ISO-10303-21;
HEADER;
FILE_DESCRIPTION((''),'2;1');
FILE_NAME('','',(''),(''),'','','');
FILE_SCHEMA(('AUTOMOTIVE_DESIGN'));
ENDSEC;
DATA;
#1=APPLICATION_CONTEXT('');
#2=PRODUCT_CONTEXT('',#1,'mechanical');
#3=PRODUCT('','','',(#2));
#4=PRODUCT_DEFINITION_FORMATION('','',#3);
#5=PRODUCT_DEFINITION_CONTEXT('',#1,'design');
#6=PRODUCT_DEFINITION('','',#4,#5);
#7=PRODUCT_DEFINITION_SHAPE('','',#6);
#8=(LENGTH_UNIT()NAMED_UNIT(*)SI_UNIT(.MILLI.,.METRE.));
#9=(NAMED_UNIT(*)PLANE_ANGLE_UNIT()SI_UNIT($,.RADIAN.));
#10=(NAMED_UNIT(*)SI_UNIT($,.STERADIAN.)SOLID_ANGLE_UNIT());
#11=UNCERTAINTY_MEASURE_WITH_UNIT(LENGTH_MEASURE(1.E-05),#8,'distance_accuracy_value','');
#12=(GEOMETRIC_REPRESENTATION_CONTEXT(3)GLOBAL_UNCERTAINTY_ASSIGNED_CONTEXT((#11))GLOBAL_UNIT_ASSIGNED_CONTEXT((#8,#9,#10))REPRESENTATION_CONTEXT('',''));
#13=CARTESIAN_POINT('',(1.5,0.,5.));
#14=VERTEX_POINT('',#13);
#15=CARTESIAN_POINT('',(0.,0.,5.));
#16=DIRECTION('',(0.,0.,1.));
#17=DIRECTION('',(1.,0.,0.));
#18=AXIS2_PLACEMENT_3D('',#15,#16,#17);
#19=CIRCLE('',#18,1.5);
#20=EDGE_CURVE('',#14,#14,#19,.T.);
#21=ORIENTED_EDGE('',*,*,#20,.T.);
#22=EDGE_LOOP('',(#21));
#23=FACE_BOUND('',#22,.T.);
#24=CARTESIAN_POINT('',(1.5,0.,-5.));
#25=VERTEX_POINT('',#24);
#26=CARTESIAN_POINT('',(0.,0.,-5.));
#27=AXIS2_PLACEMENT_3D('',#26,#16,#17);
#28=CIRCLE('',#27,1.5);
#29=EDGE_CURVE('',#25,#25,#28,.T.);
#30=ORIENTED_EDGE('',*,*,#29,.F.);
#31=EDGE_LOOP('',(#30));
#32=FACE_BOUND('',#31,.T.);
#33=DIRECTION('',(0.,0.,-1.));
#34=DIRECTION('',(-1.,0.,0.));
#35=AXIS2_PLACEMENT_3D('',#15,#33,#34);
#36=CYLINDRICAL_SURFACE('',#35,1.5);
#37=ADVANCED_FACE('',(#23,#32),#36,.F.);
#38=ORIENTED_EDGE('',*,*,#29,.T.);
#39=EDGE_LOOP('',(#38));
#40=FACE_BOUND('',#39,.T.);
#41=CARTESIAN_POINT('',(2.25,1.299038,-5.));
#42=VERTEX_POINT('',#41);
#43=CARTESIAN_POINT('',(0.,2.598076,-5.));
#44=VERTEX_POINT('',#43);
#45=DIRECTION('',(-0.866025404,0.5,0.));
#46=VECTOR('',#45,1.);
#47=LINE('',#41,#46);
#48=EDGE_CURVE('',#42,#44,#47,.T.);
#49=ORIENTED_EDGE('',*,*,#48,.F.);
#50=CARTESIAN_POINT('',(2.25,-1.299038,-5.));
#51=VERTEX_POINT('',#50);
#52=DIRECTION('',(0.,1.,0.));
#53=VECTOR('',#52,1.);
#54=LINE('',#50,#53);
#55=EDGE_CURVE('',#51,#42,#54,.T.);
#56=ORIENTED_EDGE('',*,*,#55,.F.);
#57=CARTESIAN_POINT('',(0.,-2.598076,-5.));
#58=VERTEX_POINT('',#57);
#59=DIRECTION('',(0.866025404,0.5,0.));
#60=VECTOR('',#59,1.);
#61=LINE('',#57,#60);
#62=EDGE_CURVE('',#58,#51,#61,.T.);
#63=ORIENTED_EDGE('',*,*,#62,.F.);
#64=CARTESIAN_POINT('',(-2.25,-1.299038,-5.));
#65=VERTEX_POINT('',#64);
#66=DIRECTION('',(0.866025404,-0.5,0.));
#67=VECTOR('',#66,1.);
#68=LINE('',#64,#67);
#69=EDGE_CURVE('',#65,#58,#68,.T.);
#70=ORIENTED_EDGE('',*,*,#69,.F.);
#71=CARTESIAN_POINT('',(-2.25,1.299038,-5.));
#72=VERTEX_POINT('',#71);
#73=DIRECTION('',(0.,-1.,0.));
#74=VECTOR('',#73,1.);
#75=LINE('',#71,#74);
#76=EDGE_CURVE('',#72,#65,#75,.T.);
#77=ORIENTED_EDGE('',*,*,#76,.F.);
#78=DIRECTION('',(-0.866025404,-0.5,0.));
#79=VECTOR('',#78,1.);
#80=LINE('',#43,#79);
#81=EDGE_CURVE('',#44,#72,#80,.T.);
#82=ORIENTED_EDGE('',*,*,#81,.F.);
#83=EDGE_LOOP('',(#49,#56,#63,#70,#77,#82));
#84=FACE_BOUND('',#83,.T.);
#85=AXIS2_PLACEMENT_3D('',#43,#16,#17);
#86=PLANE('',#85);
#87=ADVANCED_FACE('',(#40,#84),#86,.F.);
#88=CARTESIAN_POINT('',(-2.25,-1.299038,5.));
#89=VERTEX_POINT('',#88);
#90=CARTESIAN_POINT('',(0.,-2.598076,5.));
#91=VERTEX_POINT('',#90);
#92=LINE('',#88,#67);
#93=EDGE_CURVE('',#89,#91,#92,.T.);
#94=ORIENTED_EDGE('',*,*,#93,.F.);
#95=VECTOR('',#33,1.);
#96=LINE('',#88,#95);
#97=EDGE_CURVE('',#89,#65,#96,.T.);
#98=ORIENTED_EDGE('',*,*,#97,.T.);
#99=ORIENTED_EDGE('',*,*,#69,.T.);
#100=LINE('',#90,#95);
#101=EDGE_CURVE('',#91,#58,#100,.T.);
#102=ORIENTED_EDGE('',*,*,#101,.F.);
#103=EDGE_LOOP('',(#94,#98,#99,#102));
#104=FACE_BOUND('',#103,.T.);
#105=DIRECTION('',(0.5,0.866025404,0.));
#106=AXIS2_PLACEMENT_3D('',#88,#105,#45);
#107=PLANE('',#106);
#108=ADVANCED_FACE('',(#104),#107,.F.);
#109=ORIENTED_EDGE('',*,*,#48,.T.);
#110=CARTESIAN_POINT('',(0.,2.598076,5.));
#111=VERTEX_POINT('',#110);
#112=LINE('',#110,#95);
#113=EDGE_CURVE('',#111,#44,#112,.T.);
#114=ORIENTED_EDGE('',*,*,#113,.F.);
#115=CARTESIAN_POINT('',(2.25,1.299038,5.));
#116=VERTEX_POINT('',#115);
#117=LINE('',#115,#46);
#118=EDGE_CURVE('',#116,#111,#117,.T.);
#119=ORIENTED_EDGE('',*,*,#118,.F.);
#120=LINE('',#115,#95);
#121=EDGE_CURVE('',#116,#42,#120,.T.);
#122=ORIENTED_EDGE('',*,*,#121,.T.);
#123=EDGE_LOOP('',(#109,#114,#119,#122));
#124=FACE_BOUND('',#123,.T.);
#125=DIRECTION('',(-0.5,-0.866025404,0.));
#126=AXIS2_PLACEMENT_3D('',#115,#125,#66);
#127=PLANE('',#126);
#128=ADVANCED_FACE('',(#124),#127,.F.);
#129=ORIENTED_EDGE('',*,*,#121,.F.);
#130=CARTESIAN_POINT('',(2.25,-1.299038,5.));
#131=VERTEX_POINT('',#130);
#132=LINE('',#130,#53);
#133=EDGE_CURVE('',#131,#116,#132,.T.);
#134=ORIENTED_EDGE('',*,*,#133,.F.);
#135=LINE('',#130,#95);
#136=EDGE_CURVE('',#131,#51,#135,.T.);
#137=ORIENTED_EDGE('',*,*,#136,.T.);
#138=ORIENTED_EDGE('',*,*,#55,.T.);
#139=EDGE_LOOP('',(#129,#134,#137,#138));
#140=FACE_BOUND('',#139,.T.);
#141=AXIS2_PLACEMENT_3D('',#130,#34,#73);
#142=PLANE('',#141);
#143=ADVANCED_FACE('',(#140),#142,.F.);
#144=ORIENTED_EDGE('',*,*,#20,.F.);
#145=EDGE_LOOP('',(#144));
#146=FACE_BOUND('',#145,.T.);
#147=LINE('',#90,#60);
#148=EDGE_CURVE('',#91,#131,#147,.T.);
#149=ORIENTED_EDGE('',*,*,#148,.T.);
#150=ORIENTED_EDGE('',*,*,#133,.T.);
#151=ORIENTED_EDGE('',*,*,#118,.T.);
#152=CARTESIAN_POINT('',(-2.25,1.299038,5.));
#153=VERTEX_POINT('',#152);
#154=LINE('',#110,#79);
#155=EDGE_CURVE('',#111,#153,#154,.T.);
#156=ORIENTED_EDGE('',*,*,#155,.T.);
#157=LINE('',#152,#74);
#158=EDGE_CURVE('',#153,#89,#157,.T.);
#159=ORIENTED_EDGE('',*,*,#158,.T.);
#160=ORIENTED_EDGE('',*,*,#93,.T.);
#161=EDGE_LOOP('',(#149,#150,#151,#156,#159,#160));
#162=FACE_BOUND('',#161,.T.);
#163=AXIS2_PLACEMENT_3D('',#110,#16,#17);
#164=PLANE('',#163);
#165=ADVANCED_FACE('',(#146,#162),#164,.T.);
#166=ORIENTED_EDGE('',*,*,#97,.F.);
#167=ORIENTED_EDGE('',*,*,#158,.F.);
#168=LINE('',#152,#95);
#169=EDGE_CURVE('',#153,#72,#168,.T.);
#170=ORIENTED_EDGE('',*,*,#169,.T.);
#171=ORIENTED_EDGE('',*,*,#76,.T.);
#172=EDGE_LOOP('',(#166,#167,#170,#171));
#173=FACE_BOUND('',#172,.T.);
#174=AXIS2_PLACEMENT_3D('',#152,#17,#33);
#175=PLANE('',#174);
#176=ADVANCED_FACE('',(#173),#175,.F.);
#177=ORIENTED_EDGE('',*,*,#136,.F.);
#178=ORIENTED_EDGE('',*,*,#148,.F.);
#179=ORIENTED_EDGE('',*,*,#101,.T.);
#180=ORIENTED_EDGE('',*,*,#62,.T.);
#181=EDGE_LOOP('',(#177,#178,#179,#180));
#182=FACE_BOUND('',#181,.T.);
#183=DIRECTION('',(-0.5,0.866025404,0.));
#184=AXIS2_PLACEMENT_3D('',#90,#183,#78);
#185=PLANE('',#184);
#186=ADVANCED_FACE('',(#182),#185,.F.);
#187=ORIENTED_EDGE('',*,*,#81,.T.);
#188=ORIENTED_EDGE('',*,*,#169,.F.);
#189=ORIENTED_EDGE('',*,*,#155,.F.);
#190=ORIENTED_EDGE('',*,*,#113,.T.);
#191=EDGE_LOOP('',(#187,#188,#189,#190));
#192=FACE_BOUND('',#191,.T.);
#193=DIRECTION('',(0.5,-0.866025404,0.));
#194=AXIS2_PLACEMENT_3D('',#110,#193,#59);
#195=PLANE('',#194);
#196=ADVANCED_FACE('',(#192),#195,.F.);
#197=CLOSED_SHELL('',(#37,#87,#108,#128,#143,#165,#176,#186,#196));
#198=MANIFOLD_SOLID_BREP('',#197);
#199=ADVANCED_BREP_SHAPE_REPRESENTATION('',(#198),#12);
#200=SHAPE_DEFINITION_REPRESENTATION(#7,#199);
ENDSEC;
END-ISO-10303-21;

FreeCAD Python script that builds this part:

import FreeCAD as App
import Part
import Sketcher

V = App.Vector
Q = App.Units.Quantity

doc = App.newDocument("Part")
body = doc.addObject("PartDesign::Body", "Body")

# Sketch on XY plane
sketch1 = body.newObject("Sketcher::SketchObject", "Sketch")
sketch1.AttachmentSupport = (doc.getObject("XY_Plane"), [""])
sketch1.MapMode = "FlatFace"
sketch1.addGeometry([
    Part.LineSegment(V(0, 2.6, 0), V(-2.2, 1.3, 0)),  # 0
    Part.LineSegment(V(-2.2, 1.3, 0), V(-2.2, -1.3, 0)),  # 1
    Part.LineSegment(V(-2.2, -1.3, 0), V(0, -2.6, 0)),  # 2
    Part.LineSegment(V(0, -2.6, 0), V(2.2, -1.3, 0)),  # 3
    Part.LineSegment(V(2.2, -1.3, 0), V(2.2, 1.3, 0)),  # 4
    Part.LineSegment(V(2.2, 1.3, 0), V(0, 2.6, 0)),  # 5
    Part.Circle(V(0, 0, 0), V(0, 0, 1), 1.5),  # 6
], False)
sketch1.addConstraint([
    Sketcher.Constraint("Coincident", 0, 2, 1, 1),
    Sketcher.Constraint("Coincident", 1, 2, 2, 1),
    Sketcher.Constraint("Coincident", 2, 2, 3, 1),
    Sketcher.Constraint("Coincident", 3, 2, 4, 1),
    Sketcher.Constraint("Coincident", 4, 2, 5, 1),
    Sketcher.Constraint("Coincident", 5, 2, 0, 1),
    Sketcher.Constraint("Vertical", 1),
    Sketcher.Constraint("Vertical", 4),
    Sketcher.Constraint("Coincident", 6, 3, -1, 1),
    Sketcher.Constraint("Symmetric", 0, 2, 3, 2, -1, 1),
    Sketcher.Constraint("Symmetric", 2, 2, 5, 2, -1, 1),
    Sketcher.Constraint("PointOnObject", 2, 2, -2),
    Sketcher.Constraint("Parallel", 2, 5),
    Sketcher.Constraint("Horizontal", 1, 2, 3, 2),
    Sketcher.Constraint("Diameter", 6, 3.0),
    Sketcher.Constraint("Angle", 0, Q("-150 deg")),
    Sketcher.Constraint("DistanceX", 1, 2, 3, 2, 4.5),
    Sketcher.Constraint("DistanceY", 1, 2, 1, 1, 2.598076),
])
pad1 = body.newObject("PartDesign::Pad", "Pad")
pad1.Profile = sketch1
pad1.Type = "TwoLengths"
pad1.Length = 5
pad1.Length2 = 5

doc.recompute()
